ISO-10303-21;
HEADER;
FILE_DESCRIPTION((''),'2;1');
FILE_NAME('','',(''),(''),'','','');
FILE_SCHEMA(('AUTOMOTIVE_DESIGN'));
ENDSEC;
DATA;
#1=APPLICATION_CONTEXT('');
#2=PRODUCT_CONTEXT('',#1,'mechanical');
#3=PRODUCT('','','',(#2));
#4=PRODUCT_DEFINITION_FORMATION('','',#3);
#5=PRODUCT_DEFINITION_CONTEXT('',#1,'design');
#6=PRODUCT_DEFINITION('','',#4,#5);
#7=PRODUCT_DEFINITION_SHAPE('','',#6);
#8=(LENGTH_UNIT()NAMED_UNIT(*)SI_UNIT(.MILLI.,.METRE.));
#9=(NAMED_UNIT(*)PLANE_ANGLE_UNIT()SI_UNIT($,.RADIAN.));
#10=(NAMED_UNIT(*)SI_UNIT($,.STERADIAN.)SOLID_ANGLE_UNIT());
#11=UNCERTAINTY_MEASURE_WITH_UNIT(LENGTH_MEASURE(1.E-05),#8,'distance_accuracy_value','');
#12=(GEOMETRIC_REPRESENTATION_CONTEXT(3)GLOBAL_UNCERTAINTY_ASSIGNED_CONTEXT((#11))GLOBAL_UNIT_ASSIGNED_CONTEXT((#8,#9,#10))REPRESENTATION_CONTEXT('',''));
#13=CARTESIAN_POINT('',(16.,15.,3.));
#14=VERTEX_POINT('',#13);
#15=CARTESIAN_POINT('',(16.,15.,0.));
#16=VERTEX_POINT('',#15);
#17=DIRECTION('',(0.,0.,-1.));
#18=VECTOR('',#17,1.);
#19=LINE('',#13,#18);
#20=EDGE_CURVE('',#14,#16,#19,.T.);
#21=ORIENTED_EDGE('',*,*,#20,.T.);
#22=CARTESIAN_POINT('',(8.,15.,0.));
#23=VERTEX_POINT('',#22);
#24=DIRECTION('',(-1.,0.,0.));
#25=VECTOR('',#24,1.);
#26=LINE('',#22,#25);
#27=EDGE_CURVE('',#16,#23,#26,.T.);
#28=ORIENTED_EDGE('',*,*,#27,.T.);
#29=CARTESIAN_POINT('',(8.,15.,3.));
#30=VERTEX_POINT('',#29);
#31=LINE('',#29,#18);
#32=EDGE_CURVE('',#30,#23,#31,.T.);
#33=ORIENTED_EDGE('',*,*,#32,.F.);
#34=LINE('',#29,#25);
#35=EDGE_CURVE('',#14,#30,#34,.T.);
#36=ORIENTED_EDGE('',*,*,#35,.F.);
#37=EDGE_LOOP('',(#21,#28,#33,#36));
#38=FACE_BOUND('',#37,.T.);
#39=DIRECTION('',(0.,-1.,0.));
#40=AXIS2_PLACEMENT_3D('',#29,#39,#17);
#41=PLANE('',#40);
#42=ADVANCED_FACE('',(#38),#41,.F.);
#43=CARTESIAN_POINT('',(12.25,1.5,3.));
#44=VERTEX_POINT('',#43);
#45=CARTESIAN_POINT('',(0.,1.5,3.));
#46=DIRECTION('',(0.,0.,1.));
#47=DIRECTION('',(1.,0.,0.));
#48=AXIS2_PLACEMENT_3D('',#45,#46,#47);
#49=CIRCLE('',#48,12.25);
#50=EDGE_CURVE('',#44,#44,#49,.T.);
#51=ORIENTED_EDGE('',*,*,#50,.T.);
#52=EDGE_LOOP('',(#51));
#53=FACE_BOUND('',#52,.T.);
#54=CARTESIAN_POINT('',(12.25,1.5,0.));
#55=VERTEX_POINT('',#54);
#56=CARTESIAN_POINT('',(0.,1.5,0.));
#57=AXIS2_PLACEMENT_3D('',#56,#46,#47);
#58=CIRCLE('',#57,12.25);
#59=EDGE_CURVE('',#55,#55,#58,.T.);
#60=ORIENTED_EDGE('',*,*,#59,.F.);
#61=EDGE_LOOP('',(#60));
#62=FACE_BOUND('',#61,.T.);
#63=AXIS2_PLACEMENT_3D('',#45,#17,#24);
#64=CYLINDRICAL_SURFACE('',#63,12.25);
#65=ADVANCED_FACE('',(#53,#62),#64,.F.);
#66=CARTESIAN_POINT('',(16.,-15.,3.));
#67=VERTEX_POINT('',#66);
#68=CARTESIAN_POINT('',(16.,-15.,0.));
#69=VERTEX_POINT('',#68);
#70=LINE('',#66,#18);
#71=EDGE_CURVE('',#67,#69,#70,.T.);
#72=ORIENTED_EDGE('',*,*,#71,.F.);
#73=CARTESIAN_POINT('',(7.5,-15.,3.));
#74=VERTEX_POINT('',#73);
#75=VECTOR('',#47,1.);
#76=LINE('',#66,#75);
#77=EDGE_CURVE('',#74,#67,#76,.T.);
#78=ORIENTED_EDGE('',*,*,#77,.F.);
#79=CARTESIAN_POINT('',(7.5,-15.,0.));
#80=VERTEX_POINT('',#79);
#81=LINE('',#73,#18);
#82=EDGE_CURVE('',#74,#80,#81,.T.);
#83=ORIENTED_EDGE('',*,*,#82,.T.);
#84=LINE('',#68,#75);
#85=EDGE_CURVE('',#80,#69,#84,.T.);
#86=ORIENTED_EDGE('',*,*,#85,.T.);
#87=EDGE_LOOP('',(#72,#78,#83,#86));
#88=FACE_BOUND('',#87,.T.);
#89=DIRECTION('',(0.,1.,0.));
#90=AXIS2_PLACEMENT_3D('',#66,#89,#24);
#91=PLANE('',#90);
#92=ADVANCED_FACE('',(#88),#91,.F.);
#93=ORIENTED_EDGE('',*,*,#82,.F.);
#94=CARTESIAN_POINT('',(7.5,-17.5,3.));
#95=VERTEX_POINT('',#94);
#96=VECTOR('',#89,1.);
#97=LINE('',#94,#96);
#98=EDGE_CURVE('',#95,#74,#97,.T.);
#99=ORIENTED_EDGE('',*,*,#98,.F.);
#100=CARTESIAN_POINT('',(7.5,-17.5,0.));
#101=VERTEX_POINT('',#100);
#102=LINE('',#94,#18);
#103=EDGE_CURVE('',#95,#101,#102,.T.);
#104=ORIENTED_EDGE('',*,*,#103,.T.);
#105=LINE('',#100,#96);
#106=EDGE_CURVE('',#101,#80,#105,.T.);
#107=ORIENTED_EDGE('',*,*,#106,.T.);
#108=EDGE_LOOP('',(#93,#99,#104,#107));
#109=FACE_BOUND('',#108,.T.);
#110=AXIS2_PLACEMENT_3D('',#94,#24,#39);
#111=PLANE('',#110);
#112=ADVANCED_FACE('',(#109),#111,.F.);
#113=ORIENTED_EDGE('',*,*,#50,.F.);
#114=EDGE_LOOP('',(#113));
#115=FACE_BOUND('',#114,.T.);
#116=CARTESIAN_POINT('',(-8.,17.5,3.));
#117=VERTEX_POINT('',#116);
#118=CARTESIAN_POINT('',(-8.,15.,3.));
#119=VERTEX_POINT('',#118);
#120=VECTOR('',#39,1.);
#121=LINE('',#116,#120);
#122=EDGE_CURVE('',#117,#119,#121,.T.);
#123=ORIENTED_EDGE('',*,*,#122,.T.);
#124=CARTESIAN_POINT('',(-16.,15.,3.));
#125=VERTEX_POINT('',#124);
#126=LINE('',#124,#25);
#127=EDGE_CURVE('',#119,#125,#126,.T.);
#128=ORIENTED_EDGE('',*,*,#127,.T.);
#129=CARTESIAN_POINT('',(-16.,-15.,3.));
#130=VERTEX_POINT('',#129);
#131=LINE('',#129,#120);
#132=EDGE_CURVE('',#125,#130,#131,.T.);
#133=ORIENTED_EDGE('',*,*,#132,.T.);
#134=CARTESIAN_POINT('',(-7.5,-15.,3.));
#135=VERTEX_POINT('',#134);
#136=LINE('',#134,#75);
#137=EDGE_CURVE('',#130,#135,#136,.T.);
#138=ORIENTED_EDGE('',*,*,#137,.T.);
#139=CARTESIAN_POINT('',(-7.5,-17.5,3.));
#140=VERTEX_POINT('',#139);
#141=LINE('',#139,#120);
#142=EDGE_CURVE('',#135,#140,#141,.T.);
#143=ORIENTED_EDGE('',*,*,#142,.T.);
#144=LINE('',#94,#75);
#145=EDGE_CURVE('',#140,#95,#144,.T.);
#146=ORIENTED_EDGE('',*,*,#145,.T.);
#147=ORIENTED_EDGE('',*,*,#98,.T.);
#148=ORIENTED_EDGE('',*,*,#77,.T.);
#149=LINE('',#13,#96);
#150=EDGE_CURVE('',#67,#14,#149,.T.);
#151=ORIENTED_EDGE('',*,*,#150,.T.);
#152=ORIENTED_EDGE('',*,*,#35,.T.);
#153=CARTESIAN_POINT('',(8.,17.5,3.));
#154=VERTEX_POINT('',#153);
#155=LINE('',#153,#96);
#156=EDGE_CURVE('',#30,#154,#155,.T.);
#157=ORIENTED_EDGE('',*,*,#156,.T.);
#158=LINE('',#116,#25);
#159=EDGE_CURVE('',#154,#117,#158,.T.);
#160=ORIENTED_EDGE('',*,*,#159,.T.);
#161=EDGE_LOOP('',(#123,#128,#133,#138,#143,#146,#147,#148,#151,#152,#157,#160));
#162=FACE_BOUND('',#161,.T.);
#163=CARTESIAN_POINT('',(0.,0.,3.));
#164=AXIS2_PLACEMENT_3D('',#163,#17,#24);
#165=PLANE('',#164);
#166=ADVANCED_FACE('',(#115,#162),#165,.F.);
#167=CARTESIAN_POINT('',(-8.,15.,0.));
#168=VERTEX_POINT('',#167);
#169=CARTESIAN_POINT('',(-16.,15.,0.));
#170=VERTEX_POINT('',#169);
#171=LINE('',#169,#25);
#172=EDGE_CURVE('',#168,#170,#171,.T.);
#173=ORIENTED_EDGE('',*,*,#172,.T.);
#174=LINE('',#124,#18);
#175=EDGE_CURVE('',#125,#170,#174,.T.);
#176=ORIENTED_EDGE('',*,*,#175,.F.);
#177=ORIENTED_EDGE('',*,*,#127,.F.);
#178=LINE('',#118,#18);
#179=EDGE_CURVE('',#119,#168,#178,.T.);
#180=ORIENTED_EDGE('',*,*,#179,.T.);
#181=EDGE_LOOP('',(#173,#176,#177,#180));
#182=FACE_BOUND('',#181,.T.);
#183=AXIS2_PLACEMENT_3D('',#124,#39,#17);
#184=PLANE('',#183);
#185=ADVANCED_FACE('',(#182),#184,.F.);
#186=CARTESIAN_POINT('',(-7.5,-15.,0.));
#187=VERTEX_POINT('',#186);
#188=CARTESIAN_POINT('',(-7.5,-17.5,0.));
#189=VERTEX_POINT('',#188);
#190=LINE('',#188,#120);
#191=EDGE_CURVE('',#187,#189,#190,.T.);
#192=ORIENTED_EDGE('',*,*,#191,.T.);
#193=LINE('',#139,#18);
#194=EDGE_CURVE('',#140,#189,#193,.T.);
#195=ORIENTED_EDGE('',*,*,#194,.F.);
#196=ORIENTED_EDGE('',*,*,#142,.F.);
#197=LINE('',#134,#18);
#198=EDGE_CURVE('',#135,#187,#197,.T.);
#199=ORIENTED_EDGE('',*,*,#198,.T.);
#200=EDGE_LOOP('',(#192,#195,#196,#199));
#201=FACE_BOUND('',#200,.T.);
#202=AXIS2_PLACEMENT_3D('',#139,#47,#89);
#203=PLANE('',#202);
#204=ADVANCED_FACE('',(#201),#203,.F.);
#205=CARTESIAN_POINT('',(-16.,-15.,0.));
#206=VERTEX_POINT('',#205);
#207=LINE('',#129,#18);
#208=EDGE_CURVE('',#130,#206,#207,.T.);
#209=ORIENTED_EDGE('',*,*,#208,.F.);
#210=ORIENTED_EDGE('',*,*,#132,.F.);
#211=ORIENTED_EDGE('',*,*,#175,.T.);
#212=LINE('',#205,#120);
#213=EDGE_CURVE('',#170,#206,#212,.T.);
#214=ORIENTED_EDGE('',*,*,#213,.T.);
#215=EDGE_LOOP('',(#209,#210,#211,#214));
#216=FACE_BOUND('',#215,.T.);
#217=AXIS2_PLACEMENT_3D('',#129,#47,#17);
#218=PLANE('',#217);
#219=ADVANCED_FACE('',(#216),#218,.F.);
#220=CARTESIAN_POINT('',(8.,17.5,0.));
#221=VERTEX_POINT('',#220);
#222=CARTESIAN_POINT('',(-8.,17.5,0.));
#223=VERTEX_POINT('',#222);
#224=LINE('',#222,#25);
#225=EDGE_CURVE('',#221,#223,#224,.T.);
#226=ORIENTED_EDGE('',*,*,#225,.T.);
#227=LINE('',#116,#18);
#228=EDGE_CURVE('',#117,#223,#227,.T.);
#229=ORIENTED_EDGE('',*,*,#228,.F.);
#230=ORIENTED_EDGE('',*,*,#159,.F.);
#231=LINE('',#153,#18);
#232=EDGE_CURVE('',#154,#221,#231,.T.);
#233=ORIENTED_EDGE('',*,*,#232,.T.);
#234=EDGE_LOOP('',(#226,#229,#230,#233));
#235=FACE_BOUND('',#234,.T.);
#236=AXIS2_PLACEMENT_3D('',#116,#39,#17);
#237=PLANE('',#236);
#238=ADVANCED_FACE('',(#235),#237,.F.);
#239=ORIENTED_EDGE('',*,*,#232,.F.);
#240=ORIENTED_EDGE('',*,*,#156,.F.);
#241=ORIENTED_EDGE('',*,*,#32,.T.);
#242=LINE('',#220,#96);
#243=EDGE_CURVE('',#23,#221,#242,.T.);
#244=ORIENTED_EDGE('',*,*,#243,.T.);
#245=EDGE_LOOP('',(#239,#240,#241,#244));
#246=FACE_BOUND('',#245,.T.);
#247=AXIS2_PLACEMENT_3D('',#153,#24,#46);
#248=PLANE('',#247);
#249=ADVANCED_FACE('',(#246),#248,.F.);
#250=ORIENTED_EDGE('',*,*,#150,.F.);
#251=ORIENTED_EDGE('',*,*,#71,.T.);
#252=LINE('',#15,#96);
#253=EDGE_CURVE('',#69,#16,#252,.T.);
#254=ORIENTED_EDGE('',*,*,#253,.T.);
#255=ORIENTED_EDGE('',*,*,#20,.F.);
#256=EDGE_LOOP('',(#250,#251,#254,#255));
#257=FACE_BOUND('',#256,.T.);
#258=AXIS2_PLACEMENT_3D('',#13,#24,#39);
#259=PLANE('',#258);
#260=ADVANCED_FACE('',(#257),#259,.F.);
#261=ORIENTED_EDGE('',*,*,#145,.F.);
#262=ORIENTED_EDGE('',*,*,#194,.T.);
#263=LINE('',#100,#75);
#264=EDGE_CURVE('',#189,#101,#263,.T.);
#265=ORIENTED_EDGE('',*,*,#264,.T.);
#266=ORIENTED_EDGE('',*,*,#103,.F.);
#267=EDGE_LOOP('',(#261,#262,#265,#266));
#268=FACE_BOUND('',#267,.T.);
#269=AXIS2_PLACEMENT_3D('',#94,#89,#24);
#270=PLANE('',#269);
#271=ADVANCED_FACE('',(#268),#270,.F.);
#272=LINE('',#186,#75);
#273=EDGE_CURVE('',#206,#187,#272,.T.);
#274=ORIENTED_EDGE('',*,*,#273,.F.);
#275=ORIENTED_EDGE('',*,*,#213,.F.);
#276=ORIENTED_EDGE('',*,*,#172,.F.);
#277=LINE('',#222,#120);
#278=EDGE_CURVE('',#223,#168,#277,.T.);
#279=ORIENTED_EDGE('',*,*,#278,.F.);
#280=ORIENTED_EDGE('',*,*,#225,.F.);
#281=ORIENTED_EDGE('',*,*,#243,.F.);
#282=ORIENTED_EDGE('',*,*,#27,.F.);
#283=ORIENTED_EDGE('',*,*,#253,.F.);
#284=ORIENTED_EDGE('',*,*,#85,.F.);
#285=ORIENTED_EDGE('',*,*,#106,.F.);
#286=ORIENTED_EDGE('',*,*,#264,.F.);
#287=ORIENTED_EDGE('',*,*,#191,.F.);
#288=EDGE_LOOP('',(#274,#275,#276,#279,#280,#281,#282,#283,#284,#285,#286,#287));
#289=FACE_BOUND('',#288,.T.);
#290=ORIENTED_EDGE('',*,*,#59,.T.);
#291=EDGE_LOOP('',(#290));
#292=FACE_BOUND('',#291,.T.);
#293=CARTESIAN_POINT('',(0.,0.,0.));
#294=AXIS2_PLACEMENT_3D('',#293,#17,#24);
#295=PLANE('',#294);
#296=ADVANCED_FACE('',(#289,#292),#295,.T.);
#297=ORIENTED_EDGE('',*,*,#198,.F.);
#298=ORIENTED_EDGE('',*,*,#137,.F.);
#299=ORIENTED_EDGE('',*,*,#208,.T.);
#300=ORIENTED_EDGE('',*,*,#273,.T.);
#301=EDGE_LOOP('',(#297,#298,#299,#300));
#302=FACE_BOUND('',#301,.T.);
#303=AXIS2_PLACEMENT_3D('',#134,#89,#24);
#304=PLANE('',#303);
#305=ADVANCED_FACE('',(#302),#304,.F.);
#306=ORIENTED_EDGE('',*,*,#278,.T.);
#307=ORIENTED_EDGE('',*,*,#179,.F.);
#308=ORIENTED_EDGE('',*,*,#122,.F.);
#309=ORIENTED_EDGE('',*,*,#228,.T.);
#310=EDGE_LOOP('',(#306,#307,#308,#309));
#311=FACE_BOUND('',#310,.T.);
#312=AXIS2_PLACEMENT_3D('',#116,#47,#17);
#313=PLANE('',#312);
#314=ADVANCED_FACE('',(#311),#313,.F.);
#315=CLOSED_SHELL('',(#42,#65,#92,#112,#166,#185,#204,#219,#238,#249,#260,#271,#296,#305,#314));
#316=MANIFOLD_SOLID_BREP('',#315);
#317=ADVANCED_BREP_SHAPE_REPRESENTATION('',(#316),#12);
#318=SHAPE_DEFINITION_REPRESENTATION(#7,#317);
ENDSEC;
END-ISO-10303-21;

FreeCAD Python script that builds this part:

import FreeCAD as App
import Part
import Sketcher
Q = App.Units.Quantity

doc = App.newDocument("Part")
body = doc.addObject("PartDesign::Body", "Body")

# Sketch on XY plane
sketch1 = body.newObject("Sketcher::SketchObject", "Sketch")
sketch1.AttachmentSupport = (doc.getObject("XY_Plane"), [""])
sketch1.MapMode = "FlatFace"
sketch1.addGeometry(Part.LineSegment(App.Vector(-8, 15, 0), App.Vector(-16, 15, 0)), False)
sketch1.addGeometry(Part.LineSegment(App.Vector(-16, 15, 0), App.Vector(-16, -15, 0)), False)
sketch1.addGeometry(Part.LineSegment(App.Vector(-16, -15, 0), App.Vector(-7.5, -15, 0)), False)
sketch1.addGeometry(Part.LineSegment(App.Vector(-7.5, -15, 0), App.Vector(-7.5, -17.5, 0)), False)
sketch1.addGeometry(Part.LineSegment(App.Vector(-7.5, -17.5, 0), App.Vector(7.5, -17.5, 0)), False)
sketch1.addGeometry(Part.LineSegment(App.Vector(7.5, -17.5, 0), App.Vector(7.5, -15, 0)), False)
sketch1.addGeometry(Part.LineSegment(App.Vector(7.5, -15, 0), App.Vector(16, -15, 0)), False)
sketch1.addGeometry(Part.LineSegment(App.Vector(16, -15, 0), App.Vector(16, 15, 0)), False)
sketch1.addGeometry(Part.LineSegment(App.Vector(16, 15, 0), App.Vector(8, 15, 0)), False)
sketch1.addGeometry(Part.LineSegment(App.Vector(8, 15, 0), App.Vector(8, 17.5, 0)), False)
sketch1.addGeometry(Part.LineSegment(App.Vector(8, 17.5, 0), App.Vector(-8, 17.5, 0)), False)
sketch1.addGeometry(Part.LineSegment(App.Vector(-8, 17.5, 0), App.Vector(-8, 15, 0)), False)
sketch1.addGeometry(Part.Circle(App.Vector(0, 1.5, 0), App.Vector(0, 0, 1), 12.2), False)
sketch1.addConstraint(Sketcher.Constraint("Coincident", 0, 2, 1, 1))
sketch1.addConstraint(Sketcher.Constraint("Coincident", 1, 2, 2, 1))
sketch1.addConstraint(Sketcher.Constraint("Coincident", 2, 2, 3, 1))
sketch1.addConstraint(Sketcher.Constraint("Coincident", 3, 2, 4, 1))
sketch1.addConstraint(Sketcher.Constraint("Coincident", 4, 2, 5, 1))
sketch1.addConstraint(Sketcher.Constraint("Coincident", 5, 2, 6, 1))
sketch1.addConstraint(Sketcher.Constraint("Coincident", 6, 2, 7, 1))
sketch1.addConstraint(Sketcher.Constraint("Coincident", 7, 2, 8, 1))
sketch1.addConstraint(Sketcher.Constraint("Coincident", 8, 2, 9, 1))
sketch1.addConstraint(Sketcher.Constraint("Coincident", 9, 2, 10, 1))
sketch1.addConstraint(Sketcher.Constraint("Coincident", 10, 2, 11, 1))
sketch1.addConstraint(Sketcher.Constraint("Coincident", 11, 2, 0, 1))
sketch1.addConstraint(Sketcher.Constraint("Horizontal", 0))
sketch1.addConstraint(Sketcher.Constraint("Vertical", 1))
sketch1.addConstraint(Sketcher.Constraint("Horizontal", 2))
sketch1.addConstraint(Sketcher.Constraint("Vertical", 3))
sketch1.addConstraint(Sketcher.Constraint("Horizontal", 4))
sketch1.addConstraint(Sketcher.Constraint("Vertical", 5))
sketch1.addConstraint(Sketcher.Constraint("Horizontal", 6))
sketch1.addConstraint(Sketcher.Constraint("Vertical", 7))
sketch1.addConstraint(Sketcher.Constraint("Horizontal", 8))
sketch1.addConstraint(Sketcher.Constraint("Vertical", 9))
sketch1.addConstraint(Sketcher.Constraint("Horizontal", 10))
sketch1.addConstraint(Sketcher.Constraint("Vertical", 11))
sketch1.addConstraint(Sketcher.Constraint("Symmetric", 0, 2, 6, 2, -1, 1))
sketch1.addConstraint(Sketcher.Constraint("Symmetric", 2, 2, 5, 2, -2))
sketch1.addConstraint(Sketcher.Constraint("Symmetric", 8, 2, 11, 2, -2))
sketch1.addConstraint(Sketcher.Constraint("PointOnObject", 12, 3, -2))
sketch1.addConstraint(Sketcher.Constraint("Equal", 5, 9))
sketch1.addConstraint(Sketcher.Constraint("Diameter", 12, Q("24.5 mm")))
sketch1.addConstraint(Sketcher.Constraint("DistanceX", 0, 2, 0, 1, Q("8 mm")))
sketch1.addConstraint(Sketcher.Constraint("DistanceX", 4, 1, 4, 2, Q("15 mm")))
sketch1.addConstraint(Sketcher.Constraint("DistanceX", 10, 2, 10, 1, Q("16 mm")))
sketch1.addConstraint(Sketcher.Constraint("DistanceY", 1, 2, 1, 1, Q("30 mm")))
sketch1.addConstraint(Sketcher.Constraint("DistanceY", 3, 2, 3, 1, Q("2.5 mm")))
sketch1.addConstraint(Sketcher.Constraint("DistanceY", 3, 2, 12, 3, Q("19 mm")))
pad1 = body.newObject("PartDesign::Pad", "Pad")
pad1.Profile = sketch1
pad1.Length = 3

doc.recompute()
